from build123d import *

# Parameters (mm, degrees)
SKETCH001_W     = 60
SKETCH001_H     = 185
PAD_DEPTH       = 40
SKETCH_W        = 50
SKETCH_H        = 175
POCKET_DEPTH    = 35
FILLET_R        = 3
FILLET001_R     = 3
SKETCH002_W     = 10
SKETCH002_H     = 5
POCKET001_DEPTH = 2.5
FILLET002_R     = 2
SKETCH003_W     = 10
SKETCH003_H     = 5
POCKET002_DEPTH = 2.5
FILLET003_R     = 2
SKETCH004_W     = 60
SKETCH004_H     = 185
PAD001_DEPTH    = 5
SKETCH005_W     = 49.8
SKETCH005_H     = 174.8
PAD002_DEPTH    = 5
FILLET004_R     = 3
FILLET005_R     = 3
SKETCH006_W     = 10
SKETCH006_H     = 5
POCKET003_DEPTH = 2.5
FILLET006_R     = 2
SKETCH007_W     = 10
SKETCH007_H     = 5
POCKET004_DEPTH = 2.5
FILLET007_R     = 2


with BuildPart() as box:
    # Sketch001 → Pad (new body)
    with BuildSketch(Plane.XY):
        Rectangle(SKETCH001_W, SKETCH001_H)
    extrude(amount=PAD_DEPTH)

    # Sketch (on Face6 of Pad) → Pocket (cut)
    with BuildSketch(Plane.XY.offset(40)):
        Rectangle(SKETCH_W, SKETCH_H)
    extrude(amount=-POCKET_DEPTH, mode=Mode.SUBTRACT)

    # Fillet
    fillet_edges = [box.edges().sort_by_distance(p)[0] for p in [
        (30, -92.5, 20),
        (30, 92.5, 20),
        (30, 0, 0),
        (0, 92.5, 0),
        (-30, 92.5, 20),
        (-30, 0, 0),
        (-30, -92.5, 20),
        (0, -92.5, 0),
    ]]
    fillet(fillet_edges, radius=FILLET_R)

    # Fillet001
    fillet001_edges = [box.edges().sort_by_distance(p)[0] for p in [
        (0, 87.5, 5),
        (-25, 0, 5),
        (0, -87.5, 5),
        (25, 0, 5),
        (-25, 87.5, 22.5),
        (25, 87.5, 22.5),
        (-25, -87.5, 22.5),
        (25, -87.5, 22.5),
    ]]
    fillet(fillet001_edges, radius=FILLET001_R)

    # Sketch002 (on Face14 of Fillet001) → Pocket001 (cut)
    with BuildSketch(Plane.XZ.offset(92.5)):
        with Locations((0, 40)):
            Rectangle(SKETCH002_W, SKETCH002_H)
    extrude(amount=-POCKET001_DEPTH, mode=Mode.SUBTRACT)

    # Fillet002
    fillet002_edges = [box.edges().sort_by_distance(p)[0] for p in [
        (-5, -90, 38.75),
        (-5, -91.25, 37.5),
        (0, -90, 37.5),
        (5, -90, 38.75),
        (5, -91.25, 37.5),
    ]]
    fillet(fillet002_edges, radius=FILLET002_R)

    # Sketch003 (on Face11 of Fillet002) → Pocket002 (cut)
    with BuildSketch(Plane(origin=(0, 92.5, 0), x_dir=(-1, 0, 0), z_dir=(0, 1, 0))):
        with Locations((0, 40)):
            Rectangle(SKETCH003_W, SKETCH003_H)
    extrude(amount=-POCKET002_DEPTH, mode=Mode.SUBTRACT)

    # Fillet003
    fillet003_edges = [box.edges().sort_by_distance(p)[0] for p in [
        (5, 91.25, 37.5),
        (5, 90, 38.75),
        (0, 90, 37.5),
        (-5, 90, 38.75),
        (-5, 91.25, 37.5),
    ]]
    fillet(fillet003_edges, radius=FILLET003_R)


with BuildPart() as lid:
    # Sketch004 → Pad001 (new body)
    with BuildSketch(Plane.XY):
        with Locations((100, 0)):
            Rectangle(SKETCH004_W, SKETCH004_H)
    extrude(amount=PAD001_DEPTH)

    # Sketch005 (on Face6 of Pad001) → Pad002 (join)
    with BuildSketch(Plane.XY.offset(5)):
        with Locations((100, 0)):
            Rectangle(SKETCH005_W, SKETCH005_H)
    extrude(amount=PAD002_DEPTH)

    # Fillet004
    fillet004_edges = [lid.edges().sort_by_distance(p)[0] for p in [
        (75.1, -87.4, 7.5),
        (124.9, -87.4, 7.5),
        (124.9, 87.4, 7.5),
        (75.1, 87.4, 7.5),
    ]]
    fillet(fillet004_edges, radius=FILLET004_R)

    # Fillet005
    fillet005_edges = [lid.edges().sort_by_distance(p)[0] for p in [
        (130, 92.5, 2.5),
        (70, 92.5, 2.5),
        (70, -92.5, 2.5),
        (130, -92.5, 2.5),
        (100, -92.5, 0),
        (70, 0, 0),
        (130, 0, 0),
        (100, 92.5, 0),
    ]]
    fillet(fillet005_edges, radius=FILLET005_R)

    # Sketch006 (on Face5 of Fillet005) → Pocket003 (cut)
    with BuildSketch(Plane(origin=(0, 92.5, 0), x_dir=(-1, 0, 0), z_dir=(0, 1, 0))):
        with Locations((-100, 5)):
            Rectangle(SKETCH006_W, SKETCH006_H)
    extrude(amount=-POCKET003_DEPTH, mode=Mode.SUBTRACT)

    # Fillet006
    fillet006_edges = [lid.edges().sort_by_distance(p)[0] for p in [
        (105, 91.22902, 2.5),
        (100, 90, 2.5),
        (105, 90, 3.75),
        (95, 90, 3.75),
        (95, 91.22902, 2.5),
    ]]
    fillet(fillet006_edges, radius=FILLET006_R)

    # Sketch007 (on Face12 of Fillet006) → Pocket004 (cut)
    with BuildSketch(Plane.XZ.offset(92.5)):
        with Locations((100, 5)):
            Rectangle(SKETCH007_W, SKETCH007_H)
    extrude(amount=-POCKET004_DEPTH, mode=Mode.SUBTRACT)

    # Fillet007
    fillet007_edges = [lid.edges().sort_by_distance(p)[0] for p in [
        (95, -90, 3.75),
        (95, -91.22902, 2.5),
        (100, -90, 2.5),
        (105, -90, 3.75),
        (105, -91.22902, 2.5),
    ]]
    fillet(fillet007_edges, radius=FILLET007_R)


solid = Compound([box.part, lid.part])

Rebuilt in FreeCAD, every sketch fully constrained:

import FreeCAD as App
import Part
import Sketcher
Q = App.Units.Quantity


def edges_at(feature, points):
    """Names of the edges that pass closest to the given points."""
    edges = feature.Shape.Edges
    near = lambda p: min(range(len(edges)), key=lambda i: edges[i].distToShape(Part.Vertex(*p))[0])
    return sorted({f"Edge{near(p) + 1}" for p in points})


def add_polygon(sketch, points):
    """Adds a closed chain of lines whose ends are joined by coincident constraints."""
    first, n = sketch.GeometryCount, len(points)
    for a, b in zip(points, points[1:] + points[:1]):
        sketch.addGeometry(Part.LineSegment(App.Vector(*a, 0), App.Vector(*b, 0)), False)
    for i in range(n):
        sketch.addConstraint(Sketcher.Constraint("Coincident", first + i, 2, first + (i + 1) % n, 1))

doc = App.newDocument("Part")
body = doc.addObject("PartDesign::Body", "Body")

# Sketch on XY plane
sketch1 = doc.addObject("Sketcher::SketchObject", "Sketch")
body.addObject(sketch1)
sketch1.AttachmentSupport = (doc.XY_Plane, [""])
sketch1.MapMode = "FlatFace"
add_polygon(sketch1, [(-30, 92.5), (-30, -92.5), (30, -92.5), (30, 92.5)])  # lines 0-3
sketch1.addConstraint(Sketcher.Constraint("Vertical", 0))
sketch1.addConstraint(Sketcher.Constraint("Horizontal", 1))
sketch1.addConstraint(Sketcher.Constraint("Vertical", 2))
sketch1.addConstraint(Sketcher.Constraint("Horizontal", 3))
sketch1.addConstraint(Sketcher.Constraint("Symmetric", 0, 2, 2, 2, -1, 1))
sketch1.addConstraint(Sketcher.Constraint("DistanceX", 1, 1, 1, 2, Q("60 mm")))
sketch1.addConstraint(Sketcher.Constraint("DistanceY", 0, 2, 0, 1, Q("185 mm")))
pad1 = doc.addObject("PartDesign::Pad", "Pad")
body.addObject(pad1)
pad1.Profile = sketch1
pad1.Length = 40

# Sketch on XY plane
sketch2 = doc.addObject("Sketcher::SketchObject", "Sketch001")
body.addObject(sketch2)
sketch2.AttachmentSupport = (doc.XY_Plane, [""])
sketch2.MapMode = "FlatFace"
sketch2.AttachmentOffset = App.Placement(App.Vector(0, 0, 40), App.Rotation())
add_polygon(sketch2, [(-25, 87.5), (-25, -87.5), (25, -87.5), (25, 87.5)])  # lines 0-3
sketch2.addConstraint(Sketcher.Constraint("Vertical", 0))
sketch2.addConstraint(Sketcher.Constraint("Horizontal", 1))
sketch2.addConstraint(Sketcher.Constraint("Vertical", 2))
sketch2.addConstraint(Sketcher.Constraint("Horizontal", 3))
sketch2.addConstraint(Sketcher.Constraint("Symmetric", 0, 2, 2, 2, -1, 1))
sketch2.addConstraint(Sketcher.Constraint("DistanceX", 1, 1, 1, 2, Q("50 mm")))
sketch2.addConstraint(Sketcher.Constraint("DistanceY", 0, 2, 0, 1, Q("175 mm")))
pocket1 = doc.addObject("PartDesign::Pocket", "Pocket")
body.addObject(pocket1)
pocket1.Profile = sketch2
pocket1.Length = 35
doc.recompute()

fillet = doc.addObject("PartDesign::Fillet", "Fillet")
body.addObject(fillet)
fillet.Base = (pocket1, edges_at(pocket1, [
    (30, -92.5, 20),
    (30, 92.5, 20),
    (30, 0, 0),
    (0, 92.5, 0),
    (-30, 92.5, 20),
    (-30, 0, 0),
    (-30, -92.5, 20),
    (0, -92.5, 0),
]))
fillet.Radius = 3
doc.recompute()

fillet2 = doc.addObject("PartDesign::Fillet", "Fillet001")
body.addObject(fillet2)
fillet2.Base = (fillet, edges_at(fillet, [
    (0, 87.5, 5),
    (-25, 0, 5),
    (0, -87.5, 5),
    (25, 0, 5),
    (-25, 87.5, 22.5),
    (25, 87.5, 22.5),
    (-25, -87.5, 22.5),
    (25, -87.5, 22.5),
]))
fillet2.Radius = 3

# Sketch on XZ plane
sketch3 = doc.addObject("Sketcher::SketchObject", "Sketch002")
body.addObject(sketch3)
sketch3.AttachmentSupport = (doc.XZ_Plane, [""])
sketch3.MapMode = "FlatFace"
sketch3.AttachmentOffset = App.Placement(App.Vector(0, 0, 92.5), App.Rotation())
add_polygon(sketch3, [(-5, 42.5), (-5, 37.5), (5, 37.5), (5, 42.5)])  # lines 0-3
sketch3.addConstraint(Sketcher.Constraint("Vertical", 0))
sketch3.addConstraint(Sketcher.Constraint("Horizontal", 1))
sketch3.addConstraint(Sketcher.Constraint("Vertical", 2))
sketch3.addConstraint(Sketcher.Constraint("Horizontal", 3))
sketch3.addConstraint(Sketcher.Constraint("DistanceX", 1, 1, 1, 2, Q("10 mm")))
sketch3.addConstraint(Sketcher.Constraint("DistanceY", 0, 2, 0, 1, Q("5 mm")))
sketch3.addConstraint(Sketcher.Constraint("DistanceX", 0, 2, -1, 1, Q("5 mm")))
sketch3.addConstraint(Sketcher.Constraint("DistanceY", -1, 1, 0, 2, Q("37.5 mm")))
pocket2 = doc.addObject("PartDesign::Pocket", "Pocket001")
body.addObject(pocket2)
pocket2.Profile = sketch3
pocket2.Length = 2.5
doc.recompute()

fillet3 = doc.addObject("PartDesign::Fillet", "Fillet002")
body.addObject(fillet3)
fillet3.Base = (pocket2, edges_at(pocket2, [
    (-5, -90, 38.75),
    (-5, -91.25, 37.5),
    (0, -90, 37.5),
    (5, -90, 38.75),
    (5, -91.25, 37.5),
]))
fillet3.Radius = 2

# Sketch on XZ plane
sketch4 = doc.addObject("Sketcher::SketchObject", "Sketch003")
body.addObject(sketch4)
sketch4.AttachmentSupport = (doc.XZ_Plane, [""])
sketch4.MapMode = "FlatFace"
sketch4.AttachmentOffset = App.Placement(App.Vector(0, 0, -92.5), App.Rotation())
add_polygon(sketch4, [(5, 42.5), (5, 37.5), (-5, 37.5), (-5, 42.5)])  # lines 0-3
sketch4.addConstraint(Sketcher.Constraint("Vertical", 0))
sketch4.addConstraint(Sketcher.Constraint("Horizontal", 1))
sketch4.addConstraint(Sketcher.Constraint("Vertical", 2))
sketch4.addConstraint(Sketcher.Constraint("Horizontal", 3))
sketch4.addConstraint(Sketcher.Constraint("DistanceX", 1, 2, 1, 1, Q("10 mm")))
sketch4.addConstraint(Sketcher.Constraint("DistanceY", 0, 2, 0, 1, Q("5 mm")))
sketch4.addConstraint(Sketcher.Constraint("DistanceX", -1, 1, 0, 2, Q("5 mm")))
sketch4.addConstraint(Sketcher.Constraint("DistanceY", -1, 1, 0, 2, Q("37.5 mm")))
pocket3 = doc.addObject("PartDesign::Pocket", "Pocket002")
body.addObject(pocket3)
pocket3.Profile = sketch4
pocket3.Length = 2.5
pocket3.Reversed = True
doc.recompute()

fillet4 = doc.addObject("PartDesign::Fillet", "Fillet003")
body.addObject(fillet4)
fillet4.Base = (pocket3, edges_at(pocket3, [
    (5, 91.25, 37.5),
    (5, 90, 38.75),
    (0, 90, 37.5),
    (-5, 90, 38.75),
    (-5, 91.25, 37.5),
]))
fillet4.Radius = 2
body2 = doc.addObject("PartDesign::Body", "Body001")

# Sketch on XY plane
sketch5 = doc.addObject("Sketcher::SketchObject", "Sketch004")
body2.addObject(sketch5)
sketch5.AttachmentSupport = (doc.getObject("XY_Plane001"), [""])
sketch5.MapMode = "FlatFace"
add_polygon(sketch5, [(70, 92.5), (70, -92.5), (130, -92.5), (130, 92.5)])  # lines 0-3
sketch5.addConstraint(Sketcher.Constraint("Vertical", 0))
sketch5.addConstraint(Sketcher.Constraint("Horizontal", 1))
sketch5.addConstraint(Sketcher.Constraint("Vertical", 2))
sketch5.addConstraint(Sketcher.Constraint("Horizontal", 3))
sketch5.addConstraint(Sketcher.Constraint("DistanceX", 1, 1, 1, 2, Q("60 mm")))
sketch5.addConstraint(Sketcher.Constraint("DistanceY", 0, 2, 0, 1, Q("185 mm")))
sketch5.addConstraint(Sketcher.Constraint("DistanceX", -1, 1, 0, 2, Q("70 mm")))
sketch5.addConstraint(Sketcher.Constraint("DistanceY", 0, 2, -1, 1, Q("92.5 mm")))
pad2 = doc.addObject("PartDesign::Pad", "Pad001")
body2.addObject(pad2)
pad2.Profile = sketch5
pad2.Length = 5

# Sketch on XY plane
sketch6 = doc.addObject("Sketcher::SketchObject", "Sketch005")
body2.addObject(sketch6)
sketch6.AttachmentSupport = (doc.getObject("XY_Plane001"), [""])
sketch6.MapMode = "FlatFace"
sketch6.AttachmentOffset = App.Placement(App.Vector(0, 0, 5), App.Rotation())
add_polygon(sketch6, [(75.1, 87.4), (75.1, -87.4), (124.9, -87.4), (124.9, 87.4)])  # lines 0-3
sketch6.addConstraint(Sketcher.Constraint("Vertical", 0))
sketch6.addConstraint(Sketcher.Constraint("Horizontal", 1))
sketch6.addConstraint(Sketcher.Constraint("Vertical", 2))
sketch6.addConstraint(Sketcher.Constraint("Horizontal", 3))
sketch6.addConstraint(Sketcher.Constraint("DistanceX", 1, 1, 1, 2, Q("49.8 mm")))
sketch6.addConstraint(Sketcher.Constraint("DistanceY", 0, 2, 0, 1, Q("174.8 mm")))
sketch6.addConstraint(Sketcher.Constraint("DistanceX", -1, 1, 0, 2, Q("75.1 mm")))
sketch6.addConstraint(Sketcher.Constraint("DistanceY", 0, 2, -1, 1, Q("87.4 mm")))
pad3 = doc.addObject("PartDesign::Pad", "Pad002")
body2.addObject(pad3)
pad3.Profile = sketch6
pad3.Length = 5
doc.recompute()

fillet5 = doc.addObject("PartDesign::Fillet", "Fillet004")
body2.addObject(fillet5)
fillet5.Base = (pad3, edges_at(pad3, [
    (75.1, -87.4, 7.5),
    (124.9, -87.4, 7.5),
    (124.9, 87.4, 7.5),
    (75.1, 87.4, 7.5),
]))
fillet5.Radius = 3
doc.recompute()

fillet6 = doc.addObject("PartDesign::Fillet", "Fillet005")
body2.addObject(fillet6)
fillet6.Base = (fillet5, edges_at(fillet5, [
    (130, 92.5, 2.5),
    (70, 92.5, 2.5),
    (70, -92.5, 2.5),
    (130, -92.5, 2.5),
    (100, -92.5, 0),
    (70, 0, 0),
    (130, 0, 0),
    (100, 92.5, 0),
]))
fillet6.Radius = 3

# Sketch on XZ plane
sketch7 = doc.addObject("Sketcher::SketchObject", "Sketch006")
body2.addObject(sketch7)
sketch7.AttachmentSupport = (doc.getObject("XZ_Plane001"), [""])
sketch7.MapMode = "FlatFace"
sketch7.AttachmentOffset = App.Placement(App.Vector(0, 0, -92.5), App.Rotation())
add_polygon(sketch7, [(105, 7.5), (105, 2.5), (95, 2.5), (95, 7.5)])  # lines 0-3
sketch7.addConstraint(Sketcher.Constraint("Vertical", 0))
sketch7.addConstraint(Sketcher.Constraint("Horizontal", 1))
sketch7.addConstraint(Sketcher.Constraint("Vertical", 2))
sketch7.addConstraint(Sketcher.Constraint("Horizontal", 3))
sketch7.addConstraint(Sketcher.Constraint("DistanceX", 1, 2, 1, 1, Q("10 mm")))
sketch7.addConstraint(Sketcher.Constraint("DistanceY", 0, 2, 0, 1, Q("5 mm")))
sketch7.addConstraint(Sketcher.Constraint("DistanceX", -1, 1, 0, 2, Q("105 mm")))
sketch7.addConstraint(Sketcher.Constraint("DistanceY", -1, 1, 0, 2, Q("2.5 mm")))
pocket4 = doc.addObject("PartDesign::Pocket", "Pocket003")
body2.addObject(pocket4)
pocket4.Profile = sketch7
pocket4.Length = 2.5
pocket4.Reversed = True
doc.recompute()

fillet7 = doc.addObject("PartDesign::Fillet", "Fillet006")
body2.addObject(fillet7)
fillet7.Base = (pocket4, edges_at(pocket4, [
    (105, 91.229, 2.5),
    (100, 90, 2.5),
    (105, 90, 3.75),
    (95, 90, 3.75),
    (95, 91.229, 2.5),
]))
fillet7.Radius = 2

# Sketch on XZ plane
sketch8 = doc.addObject("Sketcher::SketchObject", "Sketch007")
body2.addObject(sketch8)
sketch8.AttachmentSupport = (doc.getObject("XZ_Plane001"), [""])
sketch8.MapMode = "FlatFace"
sketch8.AttachmentOffset = App.Placement(App.Vector(0, 0, 92.5), App.Rotation())
add_polygon(sketch8, [(95, 7.5), (95, 2.5), (105, 2.5), (105, 7.5)])  # lines 0-3
sketch8.addConstraint(Sketcher.Constraint("Vertical", 0))
sketch8.addConstraint(Sketcher.Constraint("Horizontal", 1))
sketch8.addConstraint(Sketcher.Constraint("Vertical", 2))
sketch8.addConstraint(Sketcher.Constraint("Horizontal", 3))
sketch8.addConstraint(Sketcher.Constraint("DistanceX", 1, 1, 1, 2, Q("10 mm")))
sketch8.addConstraint(Sketcher.Constraint("DistanceY", 0, 2, 0, 1, Q("5 mm")))
sketch8.addConstraint(Sketcher.Constraint("DistanceX", -1, 1, 0, 2, Q("95 mm")))
sketch8.addConstraint(Sketcher.Constraint("DistanceY", -1, 1, 0, 2, Q("2.5 mm")))
pocket5 = doc.addObject("PartDesign::Pocket", "Pocket004")
body2.addObject(pocket5)
pocket5.Profile = sketch8
pocket5.Length = 2.5
doc.recompute()

fillet8 = doc.addObject("PartDesign::Fillet", "Fillet007")
body2.addObject(fillet8)
fillet8.Base = (pocket5, edges_at(pocket5, [
    (95, -90, 3.75),
    (95, -91.229, 2.5),
    (100, -90, 2.5),
    (105, -90, 3.75),
    (105, -91.229, 2.5),
]))
fillet8.Radius = 2

doc.recompute()
